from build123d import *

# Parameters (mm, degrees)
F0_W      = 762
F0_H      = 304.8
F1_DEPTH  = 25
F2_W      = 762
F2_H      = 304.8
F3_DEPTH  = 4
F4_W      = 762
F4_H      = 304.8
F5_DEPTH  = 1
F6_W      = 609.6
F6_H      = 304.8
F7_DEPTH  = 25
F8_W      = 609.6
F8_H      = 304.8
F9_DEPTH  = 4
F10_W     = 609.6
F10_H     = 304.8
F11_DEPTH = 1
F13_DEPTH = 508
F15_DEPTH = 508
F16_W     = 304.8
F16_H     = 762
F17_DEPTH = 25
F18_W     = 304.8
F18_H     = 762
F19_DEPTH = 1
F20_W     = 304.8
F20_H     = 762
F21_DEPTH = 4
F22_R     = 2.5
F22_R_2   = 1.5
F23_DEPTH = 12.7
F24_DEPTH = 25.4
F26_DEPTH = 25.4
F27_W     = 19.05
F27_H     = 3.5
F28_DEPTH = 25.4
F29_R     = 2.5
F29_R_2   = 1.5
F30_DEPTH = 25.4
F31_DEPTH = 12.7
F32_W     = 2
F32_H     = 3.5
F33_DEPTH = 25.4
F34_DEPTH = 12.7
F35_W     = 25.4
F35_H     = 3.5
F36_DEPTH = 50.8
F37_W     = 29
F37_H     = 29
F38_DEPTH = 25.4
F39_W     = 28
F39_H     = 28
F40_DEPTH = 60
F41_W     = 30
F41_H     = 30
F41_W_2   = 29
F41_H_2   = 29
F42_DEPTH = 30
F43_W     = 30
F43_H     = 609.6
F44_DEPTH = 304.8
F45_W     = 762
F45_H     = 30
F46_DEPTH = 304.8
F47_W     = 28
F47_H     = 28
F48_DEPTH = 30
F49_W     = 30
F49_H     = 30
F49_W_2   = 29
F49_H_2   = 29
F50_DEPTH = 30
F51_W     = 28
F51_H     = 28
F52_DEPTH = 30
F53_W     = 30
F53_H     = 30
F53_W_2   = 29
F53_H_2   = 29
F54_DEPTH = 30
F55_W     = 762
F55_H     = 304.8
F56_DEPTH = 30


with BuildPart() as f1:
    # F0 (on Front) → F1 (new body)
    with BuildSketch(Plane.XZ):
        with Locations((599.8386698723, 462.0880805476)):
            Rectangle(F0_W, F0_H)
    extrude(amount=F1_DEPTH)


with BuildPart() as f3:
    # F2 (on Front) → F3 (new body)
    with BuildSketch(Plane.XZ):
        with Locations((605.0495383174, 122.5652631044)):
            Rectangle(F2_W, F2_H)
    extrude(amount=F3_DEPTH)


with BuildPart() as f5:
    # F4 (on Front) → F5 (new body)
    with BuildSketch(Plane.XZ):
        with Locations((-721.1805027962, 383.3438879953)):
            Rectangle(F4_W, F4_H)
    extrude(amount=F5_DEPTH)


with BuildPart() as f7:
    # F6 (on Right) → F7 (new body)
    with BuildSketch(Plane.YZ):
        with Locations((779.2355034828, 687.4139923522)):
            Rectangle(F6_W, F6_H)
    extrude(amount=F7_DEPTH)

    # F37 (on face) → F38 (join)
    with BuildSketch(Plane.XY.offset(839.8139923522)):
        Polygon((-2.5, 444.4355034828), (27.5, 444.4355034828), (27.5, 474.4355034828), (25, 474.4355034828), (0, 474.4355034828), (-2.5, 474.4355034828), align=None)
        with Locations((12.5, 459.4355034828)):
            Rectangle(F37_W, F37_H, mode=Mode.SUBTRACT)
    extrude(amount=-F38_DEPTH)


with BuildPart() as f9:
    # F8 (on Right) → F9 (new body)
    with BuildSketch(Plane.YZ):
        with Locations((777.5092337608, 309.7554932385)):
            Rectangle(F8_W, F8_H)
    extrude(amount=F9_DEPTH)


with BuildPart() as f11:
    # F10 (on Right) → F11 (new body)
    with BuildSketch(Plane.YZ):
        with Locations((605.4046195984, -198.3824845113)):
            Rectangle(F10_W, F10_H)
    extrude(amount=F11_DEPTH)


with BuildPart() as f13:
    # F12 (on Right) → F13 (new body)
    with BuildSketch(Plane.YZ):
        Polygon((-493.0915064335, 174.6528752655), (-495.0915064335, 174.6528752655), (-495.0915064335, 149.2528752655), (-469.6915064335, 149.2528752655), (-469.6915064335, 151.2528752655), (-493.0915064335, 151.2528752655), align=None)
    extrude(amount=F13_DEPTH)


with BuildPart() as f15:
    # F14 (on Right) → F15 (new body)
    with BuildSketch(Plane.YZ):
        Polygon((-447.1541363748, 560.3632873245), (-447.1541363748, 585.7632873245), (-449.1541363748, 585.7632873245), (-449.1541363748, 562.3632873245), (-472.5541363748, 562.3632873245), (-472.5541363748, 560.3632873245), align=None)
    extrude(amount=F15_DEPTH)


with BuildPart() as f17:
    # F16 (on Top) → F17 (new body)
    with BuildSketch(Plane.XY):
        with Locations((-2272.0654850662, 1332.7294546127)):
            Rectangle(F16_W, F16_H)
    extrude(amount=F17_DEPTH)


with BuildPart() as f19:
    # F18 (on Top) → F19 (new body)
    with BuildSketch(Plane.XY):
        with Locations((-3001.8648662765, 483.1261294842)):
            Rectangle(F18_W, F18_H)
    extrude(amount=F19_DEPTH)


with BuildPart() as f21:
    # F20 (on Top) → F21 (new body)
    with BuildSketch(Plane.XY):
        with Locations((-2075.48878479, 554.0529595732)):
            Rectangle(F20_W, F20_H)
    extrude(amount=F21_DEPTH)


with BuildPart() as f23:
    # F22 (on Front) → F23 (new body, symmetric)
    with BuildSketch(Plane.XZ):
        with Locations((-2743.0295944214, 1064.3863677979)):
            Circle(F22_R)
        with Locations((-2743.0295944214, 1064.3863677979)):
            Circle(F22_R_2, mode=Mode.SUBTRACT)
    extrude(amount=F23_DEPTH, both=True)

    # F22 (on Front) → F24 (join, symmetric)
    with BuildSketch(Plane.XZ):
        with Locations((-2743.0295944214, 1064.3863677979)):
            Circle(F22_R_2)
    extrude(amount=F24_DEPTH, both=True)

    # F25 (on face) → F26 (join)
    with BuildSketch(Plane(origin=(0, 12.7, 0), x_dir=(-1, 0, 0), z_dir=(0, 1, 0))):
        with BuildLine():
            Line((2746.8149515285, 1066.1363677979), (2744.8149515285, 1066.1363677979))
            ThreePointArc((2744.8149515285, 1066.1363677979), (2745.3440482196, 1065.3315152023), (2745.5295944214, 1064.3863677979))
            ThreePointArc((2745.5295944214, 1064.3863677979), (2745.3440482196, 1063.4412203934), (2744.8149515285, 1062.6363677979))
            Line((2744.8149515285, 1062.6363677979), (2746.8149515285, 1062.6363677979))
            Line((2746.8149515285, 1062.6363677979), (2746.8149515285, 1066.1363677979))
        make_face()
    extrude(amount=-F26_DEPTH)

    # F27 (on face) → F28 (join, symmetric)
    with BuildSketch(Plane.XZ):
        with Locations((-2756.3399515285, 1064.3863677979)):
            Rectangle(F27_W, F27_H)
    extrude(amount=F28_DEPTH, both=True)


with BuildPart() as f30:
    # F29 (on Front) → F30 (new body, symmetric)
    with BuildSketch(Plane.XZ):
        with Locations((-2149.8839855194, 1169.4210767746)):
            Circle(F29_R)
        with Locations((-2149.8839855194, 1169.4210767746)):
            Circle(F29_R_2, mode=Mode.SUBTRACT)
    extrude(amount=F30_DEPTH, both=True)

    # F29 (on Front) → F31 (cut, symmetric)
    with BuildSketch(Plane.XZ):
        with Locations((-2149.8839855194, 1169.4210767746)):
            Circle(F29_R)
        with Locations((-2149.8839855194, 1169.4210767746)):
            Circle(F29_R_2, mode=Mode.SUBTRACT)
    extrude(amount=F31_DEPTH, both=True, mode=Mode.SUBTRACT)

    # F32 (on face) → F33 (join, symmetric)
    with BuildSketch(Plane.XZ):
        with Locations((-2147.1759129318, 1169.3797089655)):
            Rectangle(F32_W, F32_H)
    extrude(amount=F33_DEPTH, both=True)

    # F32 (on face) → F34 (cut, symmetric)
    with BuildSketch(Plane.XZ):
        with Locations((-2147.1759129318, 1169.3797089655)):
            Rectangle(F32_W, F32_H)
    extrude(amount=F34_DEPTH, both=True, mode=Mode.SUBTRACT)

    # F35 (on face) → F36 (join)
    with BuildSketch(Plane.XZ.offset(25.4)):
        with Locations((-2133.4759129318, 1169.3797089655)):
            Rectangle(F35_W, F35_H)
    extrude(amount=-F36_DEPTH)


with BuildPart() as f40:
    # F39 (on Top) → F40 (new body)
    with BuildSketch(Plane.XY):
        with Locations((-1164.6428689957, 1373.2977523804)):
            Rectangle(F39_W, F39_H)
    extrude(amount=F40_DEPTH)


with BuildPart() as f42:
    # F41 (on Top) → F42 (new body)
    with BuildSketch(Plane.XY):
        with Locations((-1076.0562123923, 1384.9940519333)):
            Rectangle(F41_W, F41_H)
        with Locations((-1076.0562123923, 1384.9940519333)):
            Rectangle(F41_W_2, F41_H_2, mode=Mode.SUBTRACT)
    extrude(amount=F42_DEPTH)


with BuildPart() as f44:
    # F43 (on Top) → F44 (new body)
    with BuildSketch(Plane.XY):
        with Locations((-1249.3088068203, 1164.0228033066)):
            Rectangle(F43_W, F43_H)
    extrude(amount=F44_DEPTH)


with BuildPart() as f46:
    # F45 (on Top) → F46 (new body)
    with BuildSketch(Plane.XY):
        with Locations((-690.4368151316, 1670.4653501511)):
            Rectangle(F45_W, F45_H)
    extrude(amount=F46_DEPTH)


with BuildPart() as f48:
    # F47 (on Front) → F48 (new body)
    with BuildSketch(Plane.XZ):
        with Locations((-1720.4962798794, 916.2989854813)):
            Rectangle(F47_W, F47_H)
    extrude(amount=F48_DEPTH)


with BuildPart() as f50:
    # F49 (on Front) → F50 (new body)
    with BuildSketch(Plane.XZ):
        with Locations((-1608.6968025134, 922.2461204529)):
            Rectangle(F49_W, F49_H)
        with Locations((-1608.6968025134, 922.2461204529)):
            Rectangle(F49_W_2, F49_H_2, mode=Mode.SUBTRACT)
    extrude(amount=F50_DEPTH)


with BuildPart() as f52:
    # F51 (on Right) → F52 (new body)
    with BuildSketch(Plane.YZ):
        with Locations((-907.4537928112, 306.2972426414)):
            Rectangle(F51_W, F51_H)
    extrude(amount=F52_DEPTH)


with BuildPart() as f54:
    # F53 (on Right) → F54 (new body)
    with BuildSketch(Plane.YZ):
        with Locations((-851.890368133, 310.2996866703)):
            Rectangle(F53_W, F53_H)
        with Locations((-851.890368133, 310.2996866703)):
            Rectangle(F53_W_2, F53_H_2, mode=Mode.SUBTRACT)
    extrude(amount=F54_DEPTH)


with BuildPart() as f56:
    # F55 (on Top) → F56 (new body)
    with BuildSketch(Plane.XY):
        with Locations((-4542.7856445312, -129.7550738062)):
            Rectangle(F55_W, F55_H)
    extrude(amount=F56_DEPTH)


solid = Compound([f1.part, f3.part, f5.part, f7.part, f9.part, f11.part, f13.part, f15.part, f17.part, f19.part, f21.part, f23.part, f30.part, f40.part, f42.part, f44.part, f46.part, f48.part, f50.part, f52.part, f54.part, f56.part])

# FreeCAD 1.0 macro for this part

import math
import FreeCAD as App
import Part
import Sketcher
Q = App.Units.Quantity

doc = App.newDocument("Part")
body = doc.addObject("PartDesign::Body", "Body")

sketch1 = doc.addObject("Sketcher::SketchObject", "Sketch")
body.addObject(sketch1)
sketch1.AttachmentSupport = (doc.XZ_Plane, [""])
sketch1.MapMode = "FlatFace"
sketch1.addGeometry([
    Part.LineSegment(App.Vector(218.83867, 614.488081, 0), App.Vector(218.83867, 309.688081, 0)),
    Part.LineSegment(App.Vector(218.83867, 309.688081, 0), App.Vector(980.83867, 309.688081, 0)),
    Part.LineSegment(App.Vector(980.83867, 309.688081, 0), App.Vector(980.83867, 614.488081, 0)),
    Part.LineSegment(App.Vector(980.83867, 614.488081, 0), App.Vector(218.83867, 614.488081, 0)),
], False)
sketch1.addConstraint([
    Sketcher.Constraint("Coincident", 0, 2, 1, 1),
    Sketcher.Constraint("Coincident", 1, 2, 2, 1),
    Sketcher.Constraint("Coincident", 2, 2, 3, 1),
    Sketcher.Constraint("Coincident", 3, 2, 0, 1),
    Sketcher.Constraint("Vertical", 0),
    Sketcher.Constraint("Horizontal", 1),
    Sketcher.Constraint("Vertical", 2),
    Sketcher.Constraint("Horizontal", 3),
    Sketcher.Constraint("DistanceX", 1, 1, 1, 2, Q("762 mm")),
    Sketcher.Constraint("DistanceY", 0, 2, 0, 1, Q("304.8 mm")),
    Sketcher.Constraint("DistanceX", -1, 1, 0, 2, Q("218.83867 mm")),
    Sketcher.Constraint("DistanceY", -1, 1, 0, 2, Q("309.688081 mm")),
])
pad1 = doc.addObject("PartDesign::Pad", "Pad")
body.addObject(pad1)
pad1.Profile = sketch1
pad1.Length = 25
body2 = doc.addObject("PartDesign::Body", "Body001")

sketch2 = doc.addObject("Sketcher::SketchObject", "Sketch001")
body2.addObject(sketch2)
sketch2.AttachmentSupport = (doc.getObject("XZ_Plane001"), [""])
sketch2.MapMode = "FlatFace"
sketch2.addGeometry([
    Part.LineSegment(App.Vector(224.049538, 274.965263, 0), App.Vector(224.049538, -29.834737, 0)),
    Part.LineSegment(App.Vector(224.049538, -29.834737, 0), App.Vector(986.049538, -29.834737, 0)),
    Part.LineSegment(App.Vector(986.049538, -29.834737, 0), App.Vector(986.049538, 274.965263, 0)),
    Part.LineSegment(App.Vector(986.049538, 274.965263, 0), App.Vector(224.049538, 274.965263, 0)),
], False)
sketch2.addConstraint([
    Sketcher.Constraint("Coincident", 0, 2, 1, 1),
    Sketcher.Constraint("Coincident", 1, 2, 2, 1),
    Sketcher.Constraint("Coincident", 2, 2, 3, 1),
    Sketcher.Constraint("Coincident", 3, 2, 0, 1),
    Sketcher.Constraint("Vertical", 0),
    Sketcher.Constraint("Horizontal", 1),
    Sketcher.Constraint("Vertical", 2),
    Sketcher.Constraint("Horizontal", 3),
    Sketcher.Constraint("DistanceX", 1, 1, 1, 2, Q("762 mm")),
    Sketcher.Constraint("DistanceY", 0, 2, 0, 1, Q("304.8 mm")),
    Sketcher.Constraint("DistanceX", -1, 1, 0, 2, Q("224.049538 mm")),
    Sketcher.Constraint("DistanceY", 0, 2, -1, 1, Q("29.834737 mm")),
])
pad2 = doc.addObject("PartDesign::Pad", "Pad001")
body2.addObject(pad2)
pad2.Profile = sketch2
pad2.Length = 4
body3 = doc.addObject("PartDesign::Body", "Body002")

sketch3 = doc.addObject("Sketcher::SketchObject", "Sketch002")
body3.addObject(sketch3)
sketch3.AttachmentSupport = (doc.getObject("XZ_Plane002"), [""])
sketch3.MapMode = "FlatFace"
sketch3.addGeometry([
    Part.LineSegment(App.Vector(-1102.180503, 535.743888, 0), App.Vector(-1102.180503, 230.943888, 0)),
    Part.LineSegment(App.Vector(-1102.180503, 230.943888, 0), App.Vector(-340.180503, 230.943888, 0)),
    Part.LineSegment(App.Vector(-340.180503, 230.943888, 0), App.Vector(-340.180503, 535.743888, 0)),
    Part.LineSegment(App.Vector(-340.180503, 535.743888, 0), App.Vector(-1102.180503, 535.743888, 0)),
], False)
sketch3.addConstraint([
    Sketcher.Constraint("Coincident", 0, 2, 1, 1),
    Sketcher.Constraint("Coincident", 1, 2, 2, 1),
    Sketcher.Constraint("Coincident", 2, 2, 3, 1),
    Sketcher.Constraint("Coincident", 3, 2, 0, 1),
    Sketcher.Constraint("Vertical", 0),
    Sketcher.Constraint("Horizontal", 1),
    Sketcher.Constraint("Vertical", 2),
    Sketcher.Constraint("Horizontal", 3),
    Sketcher.Constraint("DistanceX", 1, 1, 1, 2, Q("762 mm")),
    Sketcher.Constraint("DistanceY", 0, 2, 0, 1, Q("304.8 mm")),
    Sketcher.Constraint("DistanceX", 0, 2, -1, 1, Q("1102.180503 mm")),
    Sketcher.Constraint("DistanceY", -1, 1, 0, 2, Q("230.943888 mm")),
])
pad3 = doc.addObject("PartDesign::Pad", "Pad002")
body3.addObject(pad3)
pad3.Profile = sketch3
pad3.Length = 1
body4 = doc.addObject("PartDesign::Body", "Body003")

sketch4 = doc.addObject("Sketcher::SketchObject", "Sketch003")
body4.addObject(sketch4)
sketch4.AttachmentSupport = (doc.getObject("YZ_Plane003"), [""])
sketch4.MapMode = "FlatFace"
sketch4.addGeometry([
    Part.LineSegment(App.Vector(474.435503, 839.813992, 0), App.Vector(474.435503, 535.013992, 0)),
    Part.LineSegment(App.Vector(474.435503, 535.013992, 0), App.Vector(1084.035503, 535.013992, 0)),
    Part.LineSegment(App.Vector(1084.035503, 535.013992, 0), App.Vector(1084.035503, 839.813992, 0)),
    Part.LineSegment(App.Vector(1084.035503, 839.813992, 0), App.Vector(474.435503, 839.813992, 0)),
], False)
sketch4.addConstraint([
    Sketcher.Constraint("Coincident", 0, 2, 1, 1),
    Sketcher.Constraint("Coincident", 1, 2, 2, 1),
    Sketcher.Constraint("Coincident", 2, 2, 3, 1),
    Sketcher.Constraint("Coincident", 3, 2, 0, 1),
    Sketcher.Constraint("Vertical", 0),
    Sketcher.Constraint("Horizontal", 1),
    Sketcher.Constraint("Vertical", 2),
    Sketcher.Constraint("Horizontal", 3),
    Sketcher.Constraint("DistanceX", 1, 1, 1, 2, Q("609.6 mm")),
    Sketcher.Constraint("DistanceY", 0, 2, 0, 1, Q("304.8 mm")),
    Sketcher.Constraint("DistanceX", -1, 1, 0, 2, Q("474.435503 mm")),
    Sketcher.Constraint("DistanceY", -1, 1, 0, 2, Q("535.013992 mm")),
])
pad4 = doc.addObject("PartDesign::Pad", "Pad003")
body4.addObject(pad4)
pad4.Profile = sketch4
pad4.Length = 25

sketch5 = doc.addObject("Sketcher::SketchObject", "Sketch004")
body4.addObject(sketch5)
sketch5.AttachmentSupport = (doc.getObject("XY_Plane003"), [""])
sketch5.MapMode = "FlatFace"
sketch5.AttachmentOffset = App.Placement(App.Vector(0, 0, 839.813992), App.Rotation())
sketch5.addGeometry([
    Part.LineSegment(App.Vector(-2.5, 444.435503, 0), App.Vector(27.5, 444.435503, 0)),
    Part.LineSegment(App.Vector(27.5, 444.435503, 0), App.Vector(27.5, 474.435503, 0)),
    Part.LineSegment(App.Vector(27.5, 474.435503, 0), App.Vector(-2.5, 474.435503, 0)),
    Part.LineSegment(App.Vector(-2.5, 474.435503, 0), App.Vector(-2.5, 444.435503, 0)),
    Part.LineSegment(App.Vector(27, 444.935503, 0), App.Vector(-2, 444.935503, 0)),
    Part.LineSegment(App.Vector(-2, 444.935503, 0), App.Vector(-2, 473.935503, 0)),
    Part.LineSegment(App.Vector(-2, 473.935503, 0), App.Vector(27, 473.935503, 0)),
    Part.LineSegment(App.Vector(27, 473.935503, 0), App.Vector(27, 444.935503, 0)),
], False)
sketch5.addConstraint([
    Sketcher.Constraint("Coincident", 0, 2, 1, 1),
    Sketcher.Constraint("Coincident", 1, 2, 2, 1),
    Sketcher.Constraint("Coincident", 2, 2, 3, 1),
    Sketcher.Constraint("Coincident", 3, 2, 0, 1),
    Sketcher.Constraint("Coincident", 4, 2, 5, 1),
    Sketcher.Constraint("Coincident", 5, 2, 6, 1),
    Sketcher.Constraint("Coincident", 6, 2, 7, 1),
    Sketcher.Constraint("Coincident", 7, 2, 4, 1),
    Sketcher.Constraint("Horizontal", 0),
    Sketcher.Constraint("Vertical", 1),
    Sketcher.Constraint("Horizontal", 2),
    Sketcher.Constraint("Vertical", 3),
    Sketcher.Constraint("Horizontal", 4),
    Sketcher.Constraint("Vertical", 5),
    Sketcher.Constraint("Horizontal", 6),
    Sketcher.Constraint("Vertical", 7),
    Sketcher.Constraint("Equal", 2, 1),
    Sketcher.Constraint("Equal", 6, 5),
    Sketcher.Constraint("DistanceX", 0, 1, 0, 2, Q("30 mm")),
    Sketcher.Constraint("DistanceX", 4, 2, 4, 1, Q("29 mm")),
    Sketcher.Constraint("DistanceX", 4, 2, -1, 1, Q("2 mm")),
    Sketcher.Constraint("DistanceX", -1, 1, 0, 2, Q("27.5 mm")),
    Sketcher.Constraint("DistanceY", 3, 2, 4, 2, Q("0.5 mm")),
    Sketcher.Constraint("DistanceY", -1, 1, 0, 2, Q("444.435503 mm")),
])
pad5 = doc.addObject("PartDesign::Pad", "Pad004")
body4.addObject(pad5)
pad5.Profile = sketch5
pad5.Length = 25.4
pad5.Reversed = True
body5 = doc.addObject("PartDesign::Body", "Body004")

sketch6 = doc.addObject("Sketcher::SketchObject", "Sketch005")
body5.addObject(sketch6)
sketch6.AttachmentSupport = (doc.getObject("YZ_Plane004"), [""])
sketch6.MapMode = "FlatFace"
sketch6.addGeometry([
    Part.LineSegment(App.Vector(472.709234, 462.155493, 0), App.Vector(472.709234, 157.355493, 0)),
    Part.LineSegment(App.Vector(472.709234, 157.355493, 0), App.Vector(1082.309234, 157.355493, 0)),
    Part.LineSegment(App.Vector(1082.309234, 157.355493, 0), App.Vector(1082.309234, 462.155493, 0)),
    Part.LineSegment(App.Vector(1082.309234, 462.155493, 0), App.Vector(472.709234, 462.155493, 0)),
], False)
sketch6.addConstraint([
    Sketcher.Constraint("Coincident", 0, 2, 1, 1),
    Sketcher.Constraint("Coincident", 1, 2, 2, 1),
    Sketcher.Constraint("Coincident", 2, 2, 3, 1),
    Sketcher.Constraint("Coincident", 3, 2, 0, 1),
    Sketcher.Constraint("Vertical", 0),
    Sketcher.Constraint("Horizontal", 1),
    Sketcher.Constraint("Vertical", 2),
    Sketcher.Constraint("Horizontal", 3),
    Sketcher.Constraint("DistanceX", 1, 1, 1, 2, Q("609.6 mm")),
    Sketcher.Constraint("DistanceY", 0, 2, 0, 1, Q("304.8 mm")),
    Sketcher.Constraint("DistanceX", -1, 1, 0, 2, Q("472.709234 mm")),
    Sketcher.Constraint("DistanceY", -1, 1, 0, 2, Q("157.355493 mm")),
])
pad6 = doc.addObject("PartDesign::Pad", "Pad005")
body5.addObject(pad6)
pad6.Profile = sketch6
pad6.Length = 4
body6 = doc.addObject("PartDesign::Body", "Body005")

sketch7 = doc.addObject("Sketcher::SketchObject", "Sketch006")
body6.addObject(sketch7)
sketch7.AttachmentSupport = (doc.getObject("YZ_Plane005"), [""])
sketch7.MapMode = "FlatFace"
sketch7.addGeometry([
    Part.LineSegment(App.Vector(300.60462, -45.982485, 0), App.Vector(300.60462, -350.782485, 0)),
    Part.LineSegment(App.Vector(300.60462, -350.782485, 0), App.Vector(910.20462, -350.782485, 0)),
    Part.LineSegment(App.Vector(910.20462, -350.782485, 0), App.Vector(910.20462, -45.982485, 0)),
    Part.LineSegment(App.Vector(910.20462, -45.982485, 0), App.Vector(300.60462, -45.982485, 0)),
], False)
sketch7.addConstraint([
    Sketcher.Constraint("Coincident", 0, 2, 1, 1),
    Sketcher.Constraint("Coincident", 1, 2, 2, 1),
    Sketcher.Constraint("Coincident", 2, 2, 3, 1),
    Sketcher.Constraint("Coincident", 3, 2, 0, 1),
    Sketcher.Constraint("Vertical", 0),
    Sketcher.Constraint("Horizontal", 1),
    Sketcher.Constraint("Vertical", 2),
    Sketcher.Constraint("Horizontal", 3),
    Sketcher.Constraint("DistanceX", 1, 1, 1, 2, Q("609.6 mm")),
    Sketcher.Constraint("DistanceY", 0, 2, 0, 1, Q("304.8 mm")),
    Sketcher.Constraint("DistanceX", -1, 1, 0, 2, Q("300.60462 mm")),
    Sketcher.Constraint("DistanceY", 0, 2, -1, 1, Q("350.782485 mm")),
])
pad7 = doc.addObject("PartDesign::Pad", "Pad006")
body6.addObject(pad7)
pad7.Profile = sketch7
pad7.Length = 1
body7 = doc.addObject("PartDesign::Body", "Body006")

sketch8 = doc.addObject("Sketcher::SketchObject", "Sketch007")
body7.addObject(sketch8)
sketch8.AttachmentSupport = (doc.getObject("YZ_Plane006"), [""])
sketch8.MapMode = "FlatFace"
sketch8.addGeometry([
    Part.LineSegment(App.Vector(-493.091506, 174.652875, 0), App.Vector(-495.091506, 174.652875, 0)),
    Part.LineSegment(App.Vector(-495.091506, 174.652875, 0), App.Vector(-495.091506, 149.252875, 0)),
    Part.LineSegment(App.Vector(-495.091506, 149.252875, 0), App.Vector(-469.691506, 149.252875, 0)),
    Part.LineSegment(App.Vector(-469.691506, 149.252875, 0), App.Vector(-469.691506, 151.252875, 0)),
    Part.LineSegment(App.Vector(-469.691506, 151.252875, 0), App.Vector(-493.091506, 151.252875, 0)),
    Part.LineSegment(App.Vector(-493.091506, 151.252875, 0), App.Vector(-493.091506, 174.652875, 0)),
], False)
sketch8.addConstraint([
    Sketcher.Constraint("Coincident", 0, 2, 1, 1),
    Sketcher.Constraint("Coincident", 1, 2, 2, 1),
    Sketcher.Constraint("Coincident", 2, 2, 3, 1),
    Sketcher.Constraint("Coincident", 3, 2, 4, 1),
    Sketcher.Constraint("Coincident", 4, 2, 5, 1),
    Sketcher.Constraint("Coincident", 5, 2, 0, 1),
    Sketcher.Constraint("Horizontal", 0),
    Sketcher.Constraint("Vertical", 1),
    Sketcher.Constraint("Horizontal", 2),
    Sketcher.Constraint("Vertical", 3),
    Sketcher.Constraint("Horizontal", 4),
    Sketcher.Constraint("Vertical", 5),
    Sketcher.Constraint("Equal", 2, 1),
    Sketcher.Constraint("Equal", 0, 3),
    Sketcher.Constraint("DistanceX", 0, 2, 0, 1, Q("2 mm")),
    Sketcher.Constraint("DistanceX", 2, 1, 2, 2, Q("25.4 mm")),
    Sketcher.Constraint("DistanceX", 0, 2, -1, 1, Q("495.091506 mm")),
    Sketcher.Constraint("DistanceY", -1, 1, 0, 2, Q("174.652875 mm")),
])
pad8 = doc.addObject("PartDesign::Pad", "Pad007")
body7.addObject(pad8)
pad8.Profile = sketch8
pad8.Length = 508
body8 = doc.addObject("PartDesign::Body", "Body007")

sketch9 = doc.addObject("Sketcher::SketchObject", "Sketch008")
body8.addObject(sketch9)
sketch9.AttachmentSupport = (doc.getObject("YZ_Plane007"), [""])
sketch9.MapMode = "FlatFace"
sketch9.addGeometry([
    Part.LineSegment(App.Vector(-447.154136, 560.363287, 0), App.Vector(-447.154136, 585.763287, 0)),
    Part.LineSegment(App.Vector(-447.154136, 585.763287, 0), App.Vector(-449.154136, 585.763287, 0)),
    Part.LineSegment(App.Vector(-449.154136, 585.763287, 0), App.Vector(-449.154136, 562.363287, 0)),
    Part.LineSegment(App.Vector(-449.154136, 562.363287, 0), App.Vector(-472.554136, 562.363287, 0)),
    Part.LineSegment(App.Vector(-472.554136, 562.363287, 0), App.Vector(-472.554136, 560.363287, 0)),
    Part.LineSegment(App.Vector(-472.554136, 560.363287, 0), App.Vector(-447.154136, 560.363287, 0)),
], False)
sketch9.addConstraint([
    Sketcher.Constraint("Coincident", 0, 2, 1, 1),
    Sketcher.Constraint("Coincident", 1, 2, 2, 1),
    Sketcher.Constraint("Coincident", 2, 2, 3, 1),
    Sketcher.Constraint("Coincident", 3, 2, 4, 1),
    Sketcher.Constraint("Coincident", 4, 2, 5, 1),
    Sketcher.Constraint("Coincident", 5, 2, 0, 1),
    Sketcher.Constraint("Vertical", 0),
    Sketcher.Constraint("Horizontal", 1),
    Sketcher.Constraint("Vertical", 2),
    Sketcher.Constraint("Horizontal", 3),
    Sketcher.Constraint("Vertical", 4),
    Sketcher.Constraint("Horizontal", 5),
    Sketcher.Constraint("Equal", 5, 0),
    Sketcher.Constraint("Equal", 3, 2),
    Sketcher.Constraint("DistanceX", 1, 2, 1, 1, Q("2 mm")),
    Sketcher.Constraint("DistanceX", 3, 2, 3, 1, Q("23.4 mm")),
    Sketcher.Constraint("DistanceX", 0, 2, -1, 1, Q("447.154136 mm")),
    Sketcher.Constraint("DistanceY", -1, 1, 0, 2, Q("585.763287 mm")),
])
pad9 = doc.addObject("PartDesign::Pad", "Pad008")
body8.addObject(pad9)
pad9.Profile = sketch9
pad9.Length = 508
body9 = doc.addObject("PartDesign::Body", "Body008")

sketch10 = doc.addObject("Sketcher::SketchObject", "Sketch009")
body9.addObject(sketch10)
sketch10.AttachmentSupport = (doc.getObject("XY_Plane008"), [""])
sketch10.MapMode = "FlatFace"
sketch10.addGeometry([
    Part.LineSegment(App.Vector(-2424.465485, 1713.729455, 0), App.Vector(-2424.465485, 951.729455, 0)),
    Part.LineSegment(App.Vector(-2424.465485, 951.729455, 0), App.Vector(-2119.665485, 951.729455, 0)),
    Part.LineSegment(App.Vector(-2119.665485, 951.729455, 0), App.Vector(-2119.665485, 1713.729455, 0)),
    Part.LineSegment(App.Vector(-2119.665485, 1713.729455, 0), App.Vector(-2424.465485, 1713.729455, 0)),
], False)
sketch10.addConstraint([
    Sketcher.Constraint("Coincident", 0, 2, 1, 1),
    Sketcher.Constraint("Coincident", 1, 2, 2, 1),
    Sketcher.Constraint("Coincident", 2, 2, 3, 1),
    Sketcher.Constraint("Coincident", 3, 2, 0, 1),
    Sketcher.Constraint("Vertical", 0),
    Sketcher.Constraint("Horizontal", 1),
    Sketcher.Constraint("Vertical", 2),
    Sketcher.Constraint("Horizontal", 3),
    Sketcher.Constraint("DistanceY", 0, 2, 0, 1, Q("762 mm")),
    Sketcher.Constraint("DistanceX", 1, 1, 1, 2, Q("304.8 mm")),
    Sketcher.Constraint("DistanceX", 0, 2, -1, 1, Q("2424.465485 mm")),
    Sketcher.Constraint("DistanceY", -1, 1, 0, 2, Q("951.729455 mm")),
])
pad10 = doc.addObject("PartDesign::Pad", "Pad009")
body9.addObject(pad10)
pad10.Profile = sketch10
pad10.Length = 25
body10 = doc.addObject("PartDesign::Body", "Body009")

sketch11 = doc.addObject("Sketcher::SketchObject", "Sketch010")
body10.addObject(sketch11)
sketch11.AttachmentSupport = (doc.getObject("XY_Plane009"), [""])
sketch11.MapMode = "FlatFace"
sketch11.addGeometry([
    Part.LineSegment(App.Vector(-3154.264866, 864.126129, 0), App.Vector(-3154.264866, 102.126129, 0)),
    Part.LineSegment(App.Vector(-3154.264866, 102.126129, 0), App.Vector(-2849.464866, 102.126129, 0)),
    Part.LineSegment(App.Vector(-2849.464866, 102.126129, 0), App.Vector(-2849.464866, 864.126129, 0)),
    Part.LineSegment(App.Vector(-2849.464866, 864.126129, 0), App.Vector(-3154.264866, 864.126129, 0)),
], False)
sketch11.addConstraint([
    Sketcher.Constraint("Coincident", 0, 2, 1, 1),
    Sketcher.Constraint("Coincident", 1, 2, 2, 1),
    Sketcher.Constraint("Coincident", 2, 2, 3, 1),
    Sketcher.Constraint("Coincident", 3, 2, 0, 1),
    Sketcher.Constraint("Vertical", 0),
    Sketcher.Constraint("Horizontal", 1),
    Sketcher.Constraint("Vertical", 2),
    Sketcher.Constraint("Horizontal", 3),
    Sketcher.Constraint("DistanceY", 0, 2, 0, 1, Q("762 mm")),
    Sketcher.Constraint("DistanceX", 1, 1, 1, 2, Q("304.8 mm")),
    Sketcher.Constraint("DistanceY", -1, 1, 0, 2, Q("102.126129 mm")),
    Sketcher.Constraint("DistanceX", 0, 2, -1, 1, Q("3154.264866 mm")),
])
pad11 = doc.addObject("PartDesign::Pad", "Pad010")
body10.addObject(pad11)
pad11.Profile = sketch11
pad11.Length = 1
body11 = doc.addObject("PartDesign::Body", "Body010")

sketch12 = doc.addObject("Sketcher::SketchObject", "Sketch011")
body11.addObject(sketch12)
sketch12.AttachmentSupport = (doc.getObject("XY_Plane010"), [""])
sketch12.MapMode = "FlatFace"
sketch12.addGeometry([
    Part.LineSegment(App.Vector(-2227.888785, 935.05296, 0), App.Vector(-2227.888785, 173.05296, 0)),
    Part.LineSegment(App.Vector(-2227.888785, 173.05296, 0), App.Vector(-1923.088785, 173.05296, 0)),
    Part.LineSegment(App.Vector(-1923.088785, 173.05296, 0), App.Vector(-1923.088785, 935.05296, 0)),
    Part.LineSegment(App.Vector(-1923.088785, 935.05296, 0), App.Vector(-2227.888785, 935.05296, 0)),
], False)
sketch12.addConstraint([
    Sketcher.Constraint("Coincident", 0, 2, 1, 1),
    Sketcher.Constraint("Coincident", 1, 2, 2, 1),
    Sketcher.Constraint("Coincident", 2, 2, 3, 1),
    Sketcher.Constraint("Coincident", 3, 2, 0, 1),
    Sketcher.Constraint("Vertical", 0),
    Sketcher.Constraint("Horizontal", 1),
    Sketcher.Constraint("Vertical", 2),
    Sketcher.Constraint("Horizontal", 3),
    Sketcher.Constraint("DistanceY", 0, 2, 0, 1, Q("762 mm")),
    Sketcher.Constraint("DistanceX", 1, 1, 1, 2, Q("304.8 mm")),
    Sketcher.Constraint("DistanceY", -1, 1, 0, 2, Q("173.05296 mm")),
    Sketcher.Constraint("DistanceX", 0, 2, -1, 1, Q("2227.888785 mm")),
])
pad12 = doc.addObject("PartDesign::Pad", "Pad011")
body11.addObject(pad12)
pad12.Profile = sketch12
pad12.Length = 4
body12 = doc.addObject("PartDesign::Body", "Body011")

sketch13 = doc.addObject("Sketcher::SketchObject", "Sketch012")
body12.addObject(sketch13)
sketch13.AttachmentSupport = (doc.getObject("XZ_Plane011"), [""])
sketch13.MapMode = "FlatFace"
sketch13.addGeometry([
    Part.Circle(App.Vector(-2743.029594, 1064.386368, 0), App.Vector(0, 0, 1), 2.5),
    Part.Circle(App.Vector(-2743.029594, 1064.386368, 0), App.Vector(0, 0, 1), 1.5),
], False)
sketch13.addConstraint([
    Sketcher.Constraint("Coincident", 1, 3, 0, 3),
    Sketcher.Constraint("Diameter", 0, Q("5 mm")),
    Sketcher.Constraint("Diameter", 1, Q("3 mm")),
    Sketcher.Constraint("DistanceX", 0, 3, -1, 1, Q("2743.029594 mm")),
    Sketcher.Constraint("DistanceY", -1, 1, 0, 3, Q("1064.386368 mm")),
])
pad13 = doc.addObject("PartDesign::Pad", "Pad012")
body12.addObject(pad13)
pad13.Profile = sketch13
pad13.Length = 25.4
pad13.Midplane = True

sketch14 = doc.addObject("Sketcher::SketchObject", "Sketch013")
body12.addObject(sketch14)
sketch14.AttachmentSupport = (doc.getObject("XZ_Plane011"), [""])
sketch14.MapMode = "FlatFace"
sketch14.addGeometry(Part.Circle(App.Vector(-2743.029594, 1064.386368, 0), App.Vector(0, 0, 1), 1.5), False)
sketch14.addConstraint([
    Sketcher.Constraint("Diameter", 0, Q("3 mm")),
    Sketcher.Constraint("DistanceX", 0, 3, -1, 1, Q("2743.029594 mm")),
    Sketcher.Constraint("DistanceY", -1, 1, 0, 3, Q("1064.386368 mm")),
])
pad14 = doc.addObject("PartDesign::Pad", "Pad013")
body12.addObject(pad14)
pad14.Profile = sketch14
pad14.Length = 50.8
pad14.Midplane = True

sketch15 = doc.addObject("Sketcher::SketchObject", "Sketch014")
body12.addObject(sketch15)
sketch15.AttachmentSupport = (doc.getObject("XZ_Plane011"), [""])
sketch15.MapMode = "FlatFace"
sketch15.AttachmentOffset = App.Placement(App.Vector(0, 0, -12.7), App.Rotation())
sketch15.addGeometry([
    Part.LineSegment(App.Vector(-2746.814952, 1066.136368, 0), App.Vector(-2744.814952, 1066.136368, 0)),
    Part.ArcOfCircle(Part.Circle(App.Vector(-2743.029594, 1064.386368, 0), App.Vector(0, 0, 1), 2.5), math.radians(135.572996), math.radians(180)),
    Part.ArcOfCircle(Part.Circle(App.Vector(-2743.029594, 1064.386368, 0), App.Vector(0, 0, 1), 2.5), math.radians(180), math.radians(224.427004)),
    Part.LineSegment(App.Vector(-2744.814952, 1062.636368, 0), App.Vector(-2746.814952, 1062.636368, 0)),
    Part.LineSegment(App.Vector(-2746.814952, 1062.636368, 0), App.Vector(-2746.814952, 1066.136368, 0)),
], False)
sketch15.addConstraint([
    Sketcher.Constraint("Coincident", 0, 2, 1, 1),
    Sketcher.Constraint("Tangent", 1, 2, 2, 1),
    Sketcher.Constraint("Coincident", 2, 2, 3, 1),
    Sketcher.Constraint("Coincident", 3, 2, 4, 1),
    Sketcher.Constraint("Coincident", 4, 2, 0, 1),
    Sketcher.Constraint("Horizontal", 0),
    Sketcher.Constraint("Horizontal", 3),
    Sketcher.Constraint("Vertical", 4),
    Sketcher.Constraint("Equal", 1, 2),
    Sketcher.Constraint("Horizontal", 2, 3, 1, 2),
    Sketcher.Constraint("Vertical", 0, 2, 2, 2),
    Sketcher.Constraint("Radius", 1, Q("2.5 mm")),
    Sketcher.Constraint("DistanceX", 0, 1, 0, 2, Q("2 mm")),
    Sketcher.Constraint("DistanceY", 4, 1, 4, 2, Q("3.5 mm")),
    Sketcher.Constraint("DistanceX", 0, 2, -1, 1, Q("2744.814952 mm")),
    Sketcher.Constraint("DistanceY", -1, 1, 1, 3, Q("1064.386368 mm")),
])
pad15 = doc.addObject("PartDesign::Pad", "Pad014")
body12.addObject(pad15)
pad15.Profile = sketch15
pad15.Length = 25.4

sketch16 = doc.addObject("Sketcher::SketchObject", "Sketch015")
body12.addObject(sketch16)
sketch16.AttachmentSupport = (doc.getObject("XZ_Plane011"), [""])
sketch16.MapMode = "FlatFace"
sketch16.addGeometry([
    Part.LineSegment(App.Vector(-2765.864952, 1066.136368, 0), App.Vector(-2765.864952, 1062.636368, 0)),
    Part.LineSegment(App.Vector(-2765.864952, 1062.636368, 0), App.Vector(-2746.814952, 1062.636368, 0)),
    Part.LineSegment(App.Vector(-2746.814952, 1062.636368, 0), App.Vector(-2746.814952, 1066.136368, 0)),
    Part.LineSegment(App.Vector(-2746.814952, 1066.136368, 0), App.Vector(-2765.864952, 1066.136368, 0)),
], False)
sketch16.addConstraint([
    Sketcher.Constraint("Coincident", 0, 2, 1, 1),
    Sketcher.Constraint("Coincident", 1, 2, 2, 1),
    Sketcher.Constraint("Coincident", 2, 2, 3, 1),
    Sketcher.Constraint("Coincident", 3, 2, 0, 1),
    Sketcher.Constraint("Vertical", 0),
    Sketcher.Constraint("Horizontal", 1),
    Sketcher.Constraint("Vertical", 2),
    Sketcher.Constraint("Horizontal", 3),
    Sketcher.Constraint("DistanceY", 0, 2, 0, 1, Q("3.5 mm")),
    Sketcher.Constraint("DistanceX", 1, 1, 1, 2, Q("19.05 mm")),
    Sketcher.Constraint("DistanceX", 0, 2, -1, 1, Q("2765.864952 mm")),
    Sketcher.Constraint("DistanceY", -1, 1, 0, 2, Q("1062.636368 mm")),
])
pad16 = doc.addObject("PartDesign::Pad", "Pad015")
body12.addObject(pad16)
pad16.Profile = sketch16
pad16.Length = 50.8
pad16.Midplane = True
body13 = doc.addObject("PartDesign::Body", "Body012")
body13.AllowCompound = True

sketch17 = doc.addObject("Sketcher::SketchObject", "Sketch016")
body13.addObject(sketch17)
sketch17.AttachmentSupport = (doc.getObject("XZ_Plane012"), [""])
sketch17.MapMode = "FlatFace"
sketch17.addGeometry([
    Part.Circle(App.Vector(-2149.883986, 1169.421077, 0), App.Vector(0, 0, 1), 2.5),
    Part.Circle(App.Vector(-2149.883986, 1169.421077, 0), App.Vector(0, 0, 1), 1.5),
], False)
sketch17.addConstraint([
    Sketcher.Constraint("Coincident", 1, 3, 0, 3),
    Sketcher.Constraint("Diameter", 0, Q("5 mm")),
    Sketcher.Constraint("Diameter", 1, Q("3 mm")),
    Sketcher.Constraint("DistanceX", 0, 3, -1, 1, Q("2149.883986 mm")),
    Sketcher.Constraint("DistanceY", -1, 1, 0, 3, Q("1169.421077 mm")),
])
pad17 = doc.addObject("PartDesign::Pad", "Pad016")
body13.addObject(pad17)
pad17.Profile = sketch17
pad17.Length = 50.8
pad17.Midplane = True

sketch18 = doc.addObject("Sketcher::SketchObject", "Sketch017")
body13.addObject(sketch18)
sketch18.AttachmentSupport = (doc.getObject("XZ_Plane012"), [""])
sketch18.MapMode = "FlatFace"
sketch18.addGeometry([
    Part.Circle(App.Vector(-2149.883986, 1169.421077, 0), App.Vector(0, 0, 1), 2.5),
    Part.Circle(App.Vector(-2149.883986, 1169.421077, 0), App.Vector(0, 0, 1), 1.5),
], False)
sketch18.addConstraint([
    Sketcher.Constraint("Coincident", 1, 3, 0, 3),
    Sketcher.Constraint("Diameter", 0, Q("5 mm")),
    Sketcher.Constraint("Diameter", 1, Q("3 mm")),
    Sketcher.Constraint("DistanceX", 0, 3, -1, 1, Q("2149.883986 mm")),
    Sketcher.Constraint("DistanceY", -1, 1, 0, 3, Q("1169.421077 mm")),
])
pocket1 = doc.addObject("PartDesign::Pocket", "Pocket")
body13.addObject(pocket1)
pocket1.Profile = sketch18
pocket1.Length = 25.4
pocket1.Midplane = True

sketch19 = doc.addObject("Sketcher::SketchObject", "Sketch018")
body13.addObject(sketch19)
sketch19.AttachmentSupport = (doc.getObject("XZ_Plane012"), [""])
sketch19.MapMode = "FlatFace"
sketch19.addGeometry([
    Part.LineSegment(App.Vector(-2148.175913, 1171.129709, 0), App.Vector(-2148.175913, 1167.629709, 0)),
    Part.LineSegment(App.Vector(-2148.175913, 1167.629709, 0), App.Vector(-2146.175913, 1167.629709, 0)),
    Part.LineSegment(App.Vector(-2146.175913, 1167.629709, 0), App.Vector(-2146.175913, 1171.129709, 0)),
    Part.LineSegment(App.Vector(-2146.175913, 1171.129709, 0), App.Vector(-2148.175913, 1171.129709, 0)),
], False)
sketch19.addConstraint([
    Sketcher.Constraint("Coincident", 0, 2, 1, 1),
    Sketcher.Constraint("Coincident", 1, 2, 2, 1),
    Sketcher.Constraint("Coincident", 2, 2, 3, 1),
    Sketcher.Constraint("Coincident", 3, 2, 0, 1),
    Sketcher.Constraint("Vertical", 0),
    Sketcher.Constraint("Horizontal", 1),
    Sketcher.Constraint("Vertical", 2),
    Sketcher.Constraint("Horizontal", 3),
    Sketcher.Constraint("DistanceX", 1, 1, 1, 2, Q("2 mm")),
    Sketcher.Constraint("DistanceY", 0, 2, 0, 1, Q("3.5 mm")),
    Sketcher.Constraint("DistanceY", -1, 1, 0, 2, Q("1167.629709 mm")),
    Sketcher.Constraint("DistanceX", 0, 2, -1, 1, Q("2148.175913 mm")),
])
pad18 = doc.addObject("PartDesign::Pad", "Pad017")
body13.addObject(pad18)
pad18.Profile = sketch19
pad18.Length = 50.8
pad18.Midplane = True

sketch20 = doc.addObject("Sketcher::SketchObject", "Sketch019")
body13.addObject(sketch20)
sketch20.AttachmentSupport = (doc.getObject("XZ_Plane012"), [""])
sketch20.MapMode = "FlatFace"
sketch20.addGeometry([
    Part.LineSegment(App.Vector(-2148.175913, 1171.129709, 0), App.Vector(-2148.175913, 1167.629709, 0)),
    Part.LineSegment(App.Vector(-2148.175913, 1167.629709, 0), App.Vector(-2146.175913, 1167.629709, 0)),
    Part.LineSegment(App.Vector(-2146.175913, 1167.629709, 0), App.Vector(-2146.175913, 1171.129709, 0)),
    Part.LineSegment(App.Vector(-2146.175913, 1171.129709, 0), App.Vector(-2148.175913, 1171.129709, 0)),
], False)
sketch20.addConstraint([
    Sketcher.Constraint("Coincident", 0, 2, 1, 1),
    Sketcher.Constraint("Coincident", 1, 2, 2, 1),
    Sketcher.Constraint("Coincident", 2, 2, 3, 1),
    Sketcher.Constraint("Coincident", 3, 2, 0, 1),
    Sketcher.Constraint("Vertical", 0),
    Sketcher.Constraint("Horizontal", 1),
    Sketcher.Constraint("Vertical", 2),
    Sketcher.Constraint("Horizontal", 3),
    Sketcher.Constraint("DistanceX", 1, 1, 1, 2, Q("2 mm")),
    Sketcher.Constraint("DistanceY", 0, 2, 0, 1, Q("3.5 mm")),
    Sketcher.Constraint("DistanceY", -1, 1, 0, 2, Q("1167.629709 mm")),
    Sketcher.Constraint("DistanceX", 0, 2, -1, 1, Q("2148.175913 mm")),
])
pocket2 = doc.addObject("PartDesign::Pocket", "Pocket001")
body13.addObject(pocket2)
pocket2.Profile = sketch20
pocket2.Length = 25.4
pocket2.Midplane = True

sketch21 = doc.addObject("Sketcher::SketchObject", "Sketch020")
body13.addObject(sketch21)
sketch21.AttachmentSupport = (doc.getObject("XZ_Plane012"), [""])
sketch21.MapMode = "FlatFace"
sketch21.AttachmentOffset = App.Placement(App.Vector(0, 0, 25.4), App.Rotation())
sketch21.addGeometry([
    Part.LineSegment(App.Vector(-2146.175913, 1171.129709, 0), App.Vector(-2146.175913, 1167.629709, 0)),
    Part.LineSegment(App.Vector(-2146.175913, 1167.629709, 0), App.Vector(-2120.775913, 1167.629709, 0)),
    Part.LineSegment(App.Vector(-2120.775913, 1167.629709, 0), App.Vector(-2120.775913, 1171.129709, 0)),
    Part.LineSegment(App.Vector(-2120.775913, 1171.129709, 0), App.Vector(-2146.175913, 1171.129709, 0)),
], False)
sketch21.addConstraint([
    Sketcher.Constraint("Coincident", 0, 2, 1, 1),
    Sketcher.Constraint("Coincident", 1, 2, 2, 1),
    Sketcher.Constraint("Coincident", 2, 2, 3, 1),
    Sketcher.Constraint("Coincident", 3, 2, 0, 1),
    Sketcher.Constraint("Vertical", 0),
    Sketcher.Constraint("Horizontal", 1),
    Sketcher.Constraint("Vertical", 2),
    Sketcher.Constraint("Horizontal", 3),
    Sketcher.Constraint("DistanceX", 1, 1, 1, 2, Q("25.4 mm")),
    Sketcher.Constraint("DistanceY", 0, 2, 0, 1, Q("3.5 mm")),
    Sketcher.Constraint("DistanceY", -1, 1, 0, 2, Q("1167.629709 mm")),
    Sketcher.Constraint("DistanceX", 0, 2, -1, 1, Q("2146.175913 mm")),
])
pad19 = doc.addObject("PartDesign::Pad", "Pad018")
body13.addObject(pad19)
pad19.Profile = sketch21
pad19.Length = 50.8
pad19.Reversed = True
body14 = doc.addObject("PartDesign::Body", "Body013")

sketch22 = doc.addObject("Sketcher::SketchObject", "Sketch021")
body14.addObject(sketch22)
sketch22.AttachmentSupport = (doc.getObject("XY_Plane013"), [""])
sketch22.MapMode = "FlatFace"
sketch22.addGeometry([
    Part.LineSegment(App.Vector(-1178.642869, 1387.297752, 0), App.Vector(-1178.642869, 1359.297752, 0)),
    Part.LineSegment(App.Vector(-1178.642869, 1359.297752, 0), App.Vector(-1150.642869, 1359.297752, 0)),
    Part.LineSegment(App.Vector(-1150.642869, 1359.297752, 0), App.Vector(-1150.642869, 1387.297752, 0)),
    Part.LineSegment(App.Vector(-1150.642869, 1387.297752, 0), App.Vector(-1178.642869, 1387.297752, 0)),
], False)
sketch22.addConstraint([
    Sketcher.Constraint("Coincident", 0, 2, 1, 1),
    Sketcher.Constraint("Coincident", 1, 2, 2, 1),
    Sketcher.Constraint("Coincident", 2, 2, 3, 1),
    Sketcher.Constraint("Coincident", 3, 2, 0, 1),
    Sketcher.Constraint("Vertical", 0),
    Sketcher.Constraint("Horizontal", 1),
    Sketcher.Constraint("Vertical", 2),
    Sketcher.Constraint("Horizontal", 3),
    Sketcher.Constraint("Equal", 3, 0),
    Sketcher.Constraint("DistanceX", 1, 1, 1, 2, Q("28 mm")),
    Sketcher.Constraint("DistanceX", 0, 2, -1, 1, Q("1178.642869 mm")),
    Sketcher.Constraint("DistanceY", -1, 1, 0, 2, Q("1359.297752 mm")),
])
pad20 = doc.addObject("PartDesign::Pad", "Pad019")
body14.addObject(pad20)
pad20.Profile = sketch22
pad20.Length = 60
body15 = doc.addObject("PartDesign::Body", "Body014")

sketch23 = doc.addObject("Sketcher::SketchObject", "Sketch022")
body15.addObject(sketch23)
sketch23.AttachmentSupport = (doc.getObject("XY_Plane014"), [""])
sketch23.MapMode = "FlatFace"
sketch23.addGeometry([
    Part.LineSegment(App.Vector(-1091.056212, 1399.994052, 0), App.Vector(-1091.056212, 1369.994052, 0)),
    Part.LineSegment(App.Vector(-1091.056212, 1369.994052, 0), App.Vector(-1061.056212, 1369.994052, 0)),
    Part.LineSegment(App.Vector(-1061.056212, 1369.994052, 0), App.Vector(-1061.056212, 1399.994052, 0)),
    Part.LineSegment(App.Vector(-1061.056212, 1399.994052, 0), App.Vector(-1091.056212, 1399.994052, 0)),
    Part.LineSegment(App.Vector(-1061.556212, 1370.494052, 0), App.Vector(-1090.556212, 1370.494052, 0)),
    Part.LineSegment(App.Vector(-1090.556212, 1370.494052, 0), App.Vector(-1090.556212, 1399.494052, 0)),
    Part.LineSegment(App.Vector(-1090.556212, 1399.494052, 0), App.Vector(-1061.556212, 1399.494052, 0)),
    Part.LineSegment(App.Vector(-1061.556212, 1399.494052, 0), App.Vector(-1061.556212, 1370.494052, 0)),
], False)
sketch23.addConstraint([
    Sketcher.Constraint("Coincident", 0, 2, 1, 1),
    Sketcher.Constraint("Coincident", 1, 2, 2, 1),
    Sketcher.Constraint("Coincident", 2, 2, 3, 1),
    Sketcher.Constraint("Coincident", 3, 2, 0, 1),
    Sketcher.Constraint("Coincident", 4, 2, 5, 1),
    Sketcher.Constraint("Coincident", 5, 2, 6, 1),
    Sketcher.Constraint("Coincident", 6, 2, 7, 1),
    Sketcher.Constraint("Coincident", 7, 2, 4, 1),
    Sketcher.Constraint("Vertical", 0),
    Sketcher.Constraint("Horizontal", 1),
    Sketcher.Constraint("Vertical", 2),
    Sketcher.Constraint("Horizontal", 3),
    Sketcher.Constraint("Horizontal", 4),
    Sketcher.Constraint("Vertical", 5),
    Sketcher.Constraint("Horizontal", 6),
    Sketcher.Constraint("Vertical", 7),
    Sketcher.Constraint("Equal", 3, 0),
    Sketcher.Constraint("Equal", 6, 5),
    Sketcher.Constraint("DistanceX", 1, 1, 1, 2, Q("30 mm")),
    Sketcher.Constraint("DistanceX", 4, 2, 4, 1, Q("29 mm")),
    Sketcher.Constraint("DistanceX", 0, 2, 4, 2, Q("0.5 mm")),
    Sketcher.Constraint("DistanceY", 0, 2, 4, 2, Q("0.5 mm")),
    Sketcher.Constraint("DistanceY", -1, 1, 0, 2, Q("1369.994052 mm")),
    Sketcher.Constraint("DistanceX", 0, 2, -1, 1, Q("1091.056212 mm")),
])
pad21 = doc.addObject("PartDesign::Pad", "Pad020")
body15.addObject(pad21)
pad21.Profile = sketch23
pad21.Length = 30
body16 = doc.addObject("PartDesign::Body", "Body015")

sketch24 = doc.addObject("Sketcher::SketchObject", "Sketch023")
body16.addObject(sketch24)
sketch24.AttachmentSupport = (doc.getObject("XY_Plane015"), [""])
sketch24.MapMode = "FlatFace"
sketch24.addGeometry([
    Part.LineSegment(App.Vector(-1264.308807, 1468.822803, 0), App.Vector(-1264.308807, 859.222803, 0)),
    Part.LineSegment(App.Vector(-1264.308807, 859.222803, 0), App.Vector(-1234.308807, 859.222803, 0)),
    Part.LineSegment(App.Vector(-1234.308807, 859.222803, 0), App.Vector(-1234.308807, 1468.822803, 0)),
    Part.LineSegment(App.Vector(-1234.308807, 1468.822803, 0), App.Vector(-1264.308807, 1468.822803, 0)),
], False)
sketch24.addConstraint([
    Sketcher.Constraint("Coincident", 0, 2, 1, 1),
    Sketcher.Constraint("Coincident", 1, 2, 2, 1),
    Sketcher.Constraint("Coincident", 2, 2, 3, 1),
    Sketcher.Constraint("Coincident", 3, 2, 0, 1),
    Sketcher.Constraint("Vertical", 0),
    Sketcher.Constraint("Horizontal", 1),
    Sketcher.Constraint("Vertical", 2),
    Sketcher.Constraint("Horizontal", 3),
    Sketcher.Constraint("DistanceX", 1, 1, 1, 2, Q("30 mm")),
    Sketcher.Constraint("DistanceY", 0, 2, 0, 1, Q("609.6 mm")),
    Sketcher.Constraint("DistanceX", 0, 2, -1, 1, Q("1264.308807 mm")),
    Sketcher.Constraint("DistanceY", -1, 1, 0, 2, Q("859.222803 mm")),
])
pad22 = doc.addObject("PartDesign::Pad", "Pad021")
body16.addObject(pad22)
pad22.Profile = sketch24
pad22.Length = 304.8
body17 = doc.addObject("PartDesign::Body", "Body016")

sketch25 = doc.addObject("Sketcher::SketchObject", "Sketch024")
body17.addObject(sketch25)
sketch25.AttachmentSupport = (doc.getObject("XY_Plane016"), [""])
sketch25.MapMode = "FlatFace"
sketch25.addGeometry([
    Part.LineSegment(App.Vector(-1071.436815, 1685.46535, 0), App.Vector(-1071.436815, 1655.46535, 0)),
    Part.LineSegment(App.Vector(-1071.436815, 1655.46535, 0), App.Vector(-309.436815, 1655.46535, 0)),
    Part.LineSegment(App.Vector(-309.436815, 1655.46535, 0), App.Vector(-309.436815, 1685.46535, 0)),
    Part.LineSegment(App.Vector(-309.436815, 1685.46535, 0), App.Vector(-1071.436815, 1685.46535, 0)),
], False)
sketch25.addConstraint([
    Sketcher.Constraint("Coincident", 0, 2, 1, 1),
    Sketcher.Constraint("Coincident", 1, 2, 2, 1),
    Sketcher.Constraint("Coincident", 2, 2, 3, 1),
    Sketcher.Constraint("Coincident", 3, 2, 0, 1),
    Sketcher.Constraint("Vertical", 0),
    Sketcher.Constraint("Horizontal", 1),
    Sketcher.Constraint("Vertical", 2),
    Sketcher.Constraint("Horizontal", 3),
    Sketcher.Constraint("DistanceX", 1, 1, 1, 2, Q("762 mm")),
    Sketcher.Constraint("DistanceY", 0, 2, 0, 1, Q("30 mm")),
    Sketcher.Constraint("DistanceY", -1, 1, 0, 2, Q("1655.46535 mm")),
    Sketcher.Constraint("DistanceX", 0, 2, -1, 1, Q("1071.436815 mm")),
])
pad23 = doc.addObject("PartDesign::Pad", "Pad022")
body17.addObject(pad23)
pad23.Profile = sketch25
pad23.Length = 304.8
body18 = doc.addObject("PartDesign::Body", "Body017")

sketch26 = doc.addObject("Sketcher::SketchObject", "Sketch025")
body18.addObject(sketch26)
sketch26.AttachmentSupport = (doc.getObject("XZ_Plane017"), [""])
sketch26.MapMode = "FlatFace"
sketch26.addGeometry([
    Part.LineSegment(App.Vector(-1734.49628, 930.298985, 0), App.Vector(-1734.49628, 902.298985, 0)),
    Part.LineSegment(App.Vector(-1734.49628, 902.298985, 0), App.Vector(-1706.49628, 902.298985, 0)),
    Part.LineSegment(App.Vector(-1706.49628, 902.298985, 0), App.Vector(-1706.49628, 930.298985, 0)),
    Part.LineSegment(App.Vector(-1706.49628, 930.298985, 0), App.Vector(-1734.49628, 930.298985, 0)),
], False)
sketch26.addConstraint([
    Sketcher.Constraint("Coincident", 0, 2, 1, 1),
    Sketcher.Constraint("Coincident", 1, 2, 2, 1),
    Sketcher.Constraint("Coincident", 2, 2, 3, 1),
    Sketcher.Constraint("Coincident", 3, 2, 0, 1),
    Sketcher.Constraint("Vertical", 0),
    Sketcher.Constraint("Horizontal", 1),
    Sketcher.Constraint("Vertical", 2),
    Sketcher.Constraint("Horizontal", 3),
    Sketcher.Constraint("Equal", 3, 0),
    Sketcher.Constraint("DistanceX", 1, 1, 1, 2, Q("28 mm")),
    Sketcher.Constraint("DistanceX", 0, 2, -1, 1, Q("1734.49628 mm")),
    Sketcher.Constraint("DistanceY", -1, 1, 0, 2, Q("902.298985 mm")),
])
pad24 = doc.addObject("PartDesign::Pad", "Pad023")
body18.addObject(pad24)
pad24.Profile = sketch26
pad24.Length = 30
body19 = doc.addObject("PartDesign::Body", "Body018")

sketch27 = doc.addObject("Sketcher::SketchObject", "Sketch026")
body19.addObject(sketch27)
sketch27.AttachmentSupport = (doc.getObject("XZ_Plane018"), [""])
sketch27.MapMode = "FlatFace"
sketch27.addGeometry([
    Part.LineSegment(App.Vector(-1623.696803, 937.24612, 0), App.Vector(-1623.696803, 907.24612, 0)),
    Part.LineSegment(App.Vector(-1623.696803, 907.24612, 0), App.Vector(-1593.696803, 907.24612, 0)),
    Part.LineSegment(App.Vector(-1593.696803, 907.24612, 0), App.Vector(-1593.696803, 937.24612, 0)),
    Part.LineSegment(App.Vector(-1593.696803, 937.24612, 0), App.Vector(-1623.696803, 937.24612, 0)),
    Part.LineSegment(App.Vector(-1594.196803, 907.74612, 0), App.Vector(-1623.196803, 907.74612, 0)),
    Part.LineSegment(App.Vector(-1623.196803, 907.74612, 0), App.Vector(-1623.196803, 936.74612, 0)),
    Part.LineSegment(App.Vector(-1623.196803, 936.74612, 0), App.Vector(-1594.196803, 936.74612, 0)),
    Part.LineSegment(App.Vector(-1594.196803, 936.74612, 0), App.Vector(-1594.196803, 907.74612, 0)),
], False)
sketch27.addConstraint([
    Sketcher.Constraint("Coincident", 0, 2, 1, 1),
    Sketcher.Constraint("Coincident", 1, 2, 2, 1),
    Sketcher.Constraint("Coincident", 2, 2, 3, 1),
    Sketcher.Constraint("Coincident", 3, 2, 0, 1),
    Sketcher.Constraint("Coincident", 4, 2, 5, 1),
    Sketcher.Constraint("Coincident", 5, 2, 6, 1),
    Sketcher.Constraint("Coincident", 6, 2, 7, 1),
    Sketcher.Constraint("Coincident", 7, 2, 4, 1),
    Sketcher.Constraint("Vertical", 0),
    Sketcher.Constraint("Horizontal", 1),
    Sketcher.Constraint("Vertical", 2),
    Sketcher.Constraint("Horizontal", 3),
    Sketcher.Constraint("Horizontal", 4),
    Sketcher.Constraint("Vertical", 5),
    Sketcher.Constraint("Horizontal", 6),
    Sketcher.Constraint("Vertical", 7),
    Sketcher.Constraint("Equal", 3, 0),
    Sketcher.Constraint("Equal", 6, 5),
    Sketcher.Constraint("DistanceX", 1, 1, 1, 2, Q("30 mm")),
    Sketcher.Constraint("DistanceX", 4, 2, 4, 1, Q("29 mm")),
    Sketcher.Constraint("DistanceX", 0, 2, 4, 2, Q("0.5 mm")),
    Sketcher.Constraint("DistanceY", 0, 2, 4, 2, Q("0.5 mm")),
    Sketcher.Constraint("DistanceY", -1, 1, 0, 2, Q("907.24612 mm")),
    Sketcher.Constraint("DistanceX", 0, 2, -1, 1, Q("1623.696803 mm")),
])
pad25 = doc.addObject("PartDesign::Pad", "Pad024")
body19.addObject(pad25)
pad25.Profile = sketch27
pad25.Length = 30
body20 = doc.addObject("PartDesign::Body", "Body019")

sketch28 = doc.addObject("Sketcher::SketchObject", "Sketch027")
body20.addObject(sketch28)
sketch28.AttachmentSupport = (doc.getObject("YZ_Plane019"), [""])
sketch28.MapMode = "FlatFace"
sketch28.addGeometry([
    Part.LineSegment(App.Vector(-921.453793, 320.297243, 0), App.Vector(-921.453793, 292.297243, 0)),
    Part.LineSegment(App.Vector(-921.453793, 292.297243, 0), App.Vector(-893.453793, 292.297243, 0)),
    Part.LineSegment(App.Vector(-893.453793, 292.297243, 0), App.Vector(-893.453793, 320.297243, 0)),
    Part.LineSegment(App.Vector(-893.453793, 320.297243, 0), App.Vector(-921.453793, 320.297243, 0)),
], False)
sketch28.addConstraint([
    Sketcher.Constraint("Coincident", 0, 2, 1, 1),
    Sketcher.Constraint("Coincident", 1, 2, 2, 1),
    Sketcher.Constraint("Coincident", 2, 2, 3, 1),
    Sketcher.Constraint("Coincident", 3, 2, 0, 1),
    Sketcher.Constraint("Vertical", 0),
    Sketcher.Constraint("Horizontal", 1),
    Sketcher.Constraint("Vertical", 2),
    Sketcher.Constraint("Horizontal", 3),
    Sketcher.Constraint("Equal", 3, 0),
    Sketcher.Constraint("DistanceX", 1, 1, 1, 2, Q("28 mm")),
    Sketcher.Constraint("DistanceX", 0, 2, -1, 1, Q("921.453793 mm")),
    Sketcher.Constraint("DistanceY", -1, 1, 0, 2, Q("292.297243 mm")),
])
pad26 = doc.addObject("PartDesign::Pad", "Pad025")
body20.addObject(pad26)
pad26.Profile = sketch28
pad26.Length = 30
body21 = doc.addObject("PartDesign::Body", "Body020")

sketch29 = doc.addObject("Sketcher::SketchObject", "Sketch028")
body21.addObject(sketch29)
sketch29.AttachmentSupport = (doc.getObject("YZ_Plane020"), [""])
sketch29.MapMode = "FlatFace"
sketch29.addGeometry([
    Part.LineSegment(App.Vector(-866.890368, 325.299687, 0), App.Vector(-866.890368, 295.299687, 0)),
    Part.LineSegment(App.Vector(-866.890368, 295.299687, 0), App.Vector(-836.890368, 295.299687, 0)),
    Part.LineSegment(App.Vector(-836.890368, 295.299687, 0), App.Vector(-836.890368, 325.299687, 0)),
    Part.LineSegment(App.Vector(-836.890368, 325.299687, 0), App.Vector(-866.890368, 325.299687, 0)),
    Part.LineSegment(App.Vector(-837.390368, 295.799687, 0), App.Vector(-866.390368, 295.799687, 0)),
    Part.LineSegment(App.Vector(-866.390368, 295.799687, 0), App.Vector(-866.390368, 324.799687, 0)),
    Part.LineSegment(App.Vector(-866.390368, 324.799687, 0), App.Vector(-837.390368, 324.799687, 0)),
    Part.LineSegment(App.Vector(-837.390368, 324.799687, 0), App.Vector(-837.390368, 295.799687, 0)),
], False)
sketch29.addConstraint([
    Sketcher.Constraint("Coincident", 0, 2, 1, 1),
    Sketcher.Constraint("Coincident", 1, 2, 2, 1),
    Sketcher.Constraint("Coincident", 2, 2, 3, 1),
    Sketcher.Constraint("Coincident", 3, 2, 0, 1),
    Sketcher.Constraint("Coincident", 4, 2, 5, 1),
    Sketcher.Constraint("Coincident", 5, 2, 6, 1),
    Sketcher.Constraint("Coincident", 6, 2, 7, 1),
    Sketcher.Constraint("Coincident", 7, 2, 4, 1),
    Sketcher.Constraint("Vertical", 0),
    Sketcher.Constraint("Horizontal", 1),
    Sketcher.Constraint("Vertical", 2),
    Sketcher.Constraint("Horizontal", 3),
    Sketcher.Constraint("Horizontal", 4),
    Sketcher.Constraint("Vertical", 5),
    Sketcher.Constraint("Horizontal", 6),
    Sketcher.Constraint("Vertical", 7),
    Sketcher.Constraint("Equal", 3, 0),
    Sketcher.Constraint("Equal", 6, 5),
    Sketcher.Constraint("DistanceX", 1, 1, 1, 2, Q("30 mm")),
    Sketcher.Constraint("DistanceX", 4, 2, 4, 1, Q("29 mm")),
    Sketcher.Constraint("DistanceX", 0, 2, 4, 2, Q("0.5 mm")),
    Sketcher.Constraint("DistanceY", 0, 2, 4, 2, Q("0.5 mm")),
    Sketcher.Constraint("DistanceX", 0, 2, -1, 1, Q("866.890368 mm")),
    Sketcher.Constraint("DistanceY", -1, 1, 0, 2, Q("295.299687 mm")),
])
pad27 = doc.addObject("PartDesign::Pad", "Pad026")
body21.addObject(pad27)
pad27.Profile = sketch29
pad27.Length = 30
body22 = doc.addObject("PartDesign::Body", "Body021")

sketch30 = doc.addObject("Sketcher::SketchObject", "Sketch029")
body22.addObject(sketch30)
sketch30.AttachmentSupport = (doc.getObject("XY_Plane021"), [""])
sketch30.MapMode = "FlatFace"
sketch30.addGeometry([
    Part.LineSegment(App.Vector(-4923.785645, 22.644926, 0), App.Vector(-4923.785645, -282.155074, 0)),
    Part.LineSegment(App.Vector(-4923.785645, -282.155074, 0), App.Vector(-4161.785645, -282.155074, 0)),
    Part.LineSegment(App.Vector(-4161.785645, -282.155074, 0), App.Vector(-4161.785645, 22.644926, 0)),
    Part.LineSegment(App.Vector(-4161.785645, 22.644926, 0), App.Vector(-4923.785645, 22.644926, 0)),
], False)
sketch30.addConstraint([
    Sketcher.Constraint("Coincident", 0, 2, 1, 1),
    Sketcher.Constraint("Coincident", 1, 2, 2, 1),
    Sketcher.Constraint("Coincident", 2, 2, 3, 1),
    Sketcher.Constraint("Coincident", 3, 2, 0, 1),
    Sketcher.Constraint("Vertical", 0),
    Sketcher.Constraint("Horizontal", 1),
    Sketcher.Constraint("Vertical", 2),
    Sketcher.Constraint("Horizontal", 3),
    Sketcher.Constraint("DistanceX", 1, 1, 1, 2, Q("762 mm")),
    Sketcher.Constraint("DistanceY", 0, 2, 0, 1, Q("304.8 mm")),
    Sketcher.Constraint("DistanceX", 0, 2, -1, 1, Q("4923.785645 mm")),
    Sketcher.Constraint("DistanceY", 0, 2, -1, 1, Q("282.155074 mm")),
])
pad28 = doc.addObject("PartDesign::Pad", "Pad027")
body22.addObject(pad28)
pad28.Profile = sketch30
pad28.Length = 30

doc.recompute()
